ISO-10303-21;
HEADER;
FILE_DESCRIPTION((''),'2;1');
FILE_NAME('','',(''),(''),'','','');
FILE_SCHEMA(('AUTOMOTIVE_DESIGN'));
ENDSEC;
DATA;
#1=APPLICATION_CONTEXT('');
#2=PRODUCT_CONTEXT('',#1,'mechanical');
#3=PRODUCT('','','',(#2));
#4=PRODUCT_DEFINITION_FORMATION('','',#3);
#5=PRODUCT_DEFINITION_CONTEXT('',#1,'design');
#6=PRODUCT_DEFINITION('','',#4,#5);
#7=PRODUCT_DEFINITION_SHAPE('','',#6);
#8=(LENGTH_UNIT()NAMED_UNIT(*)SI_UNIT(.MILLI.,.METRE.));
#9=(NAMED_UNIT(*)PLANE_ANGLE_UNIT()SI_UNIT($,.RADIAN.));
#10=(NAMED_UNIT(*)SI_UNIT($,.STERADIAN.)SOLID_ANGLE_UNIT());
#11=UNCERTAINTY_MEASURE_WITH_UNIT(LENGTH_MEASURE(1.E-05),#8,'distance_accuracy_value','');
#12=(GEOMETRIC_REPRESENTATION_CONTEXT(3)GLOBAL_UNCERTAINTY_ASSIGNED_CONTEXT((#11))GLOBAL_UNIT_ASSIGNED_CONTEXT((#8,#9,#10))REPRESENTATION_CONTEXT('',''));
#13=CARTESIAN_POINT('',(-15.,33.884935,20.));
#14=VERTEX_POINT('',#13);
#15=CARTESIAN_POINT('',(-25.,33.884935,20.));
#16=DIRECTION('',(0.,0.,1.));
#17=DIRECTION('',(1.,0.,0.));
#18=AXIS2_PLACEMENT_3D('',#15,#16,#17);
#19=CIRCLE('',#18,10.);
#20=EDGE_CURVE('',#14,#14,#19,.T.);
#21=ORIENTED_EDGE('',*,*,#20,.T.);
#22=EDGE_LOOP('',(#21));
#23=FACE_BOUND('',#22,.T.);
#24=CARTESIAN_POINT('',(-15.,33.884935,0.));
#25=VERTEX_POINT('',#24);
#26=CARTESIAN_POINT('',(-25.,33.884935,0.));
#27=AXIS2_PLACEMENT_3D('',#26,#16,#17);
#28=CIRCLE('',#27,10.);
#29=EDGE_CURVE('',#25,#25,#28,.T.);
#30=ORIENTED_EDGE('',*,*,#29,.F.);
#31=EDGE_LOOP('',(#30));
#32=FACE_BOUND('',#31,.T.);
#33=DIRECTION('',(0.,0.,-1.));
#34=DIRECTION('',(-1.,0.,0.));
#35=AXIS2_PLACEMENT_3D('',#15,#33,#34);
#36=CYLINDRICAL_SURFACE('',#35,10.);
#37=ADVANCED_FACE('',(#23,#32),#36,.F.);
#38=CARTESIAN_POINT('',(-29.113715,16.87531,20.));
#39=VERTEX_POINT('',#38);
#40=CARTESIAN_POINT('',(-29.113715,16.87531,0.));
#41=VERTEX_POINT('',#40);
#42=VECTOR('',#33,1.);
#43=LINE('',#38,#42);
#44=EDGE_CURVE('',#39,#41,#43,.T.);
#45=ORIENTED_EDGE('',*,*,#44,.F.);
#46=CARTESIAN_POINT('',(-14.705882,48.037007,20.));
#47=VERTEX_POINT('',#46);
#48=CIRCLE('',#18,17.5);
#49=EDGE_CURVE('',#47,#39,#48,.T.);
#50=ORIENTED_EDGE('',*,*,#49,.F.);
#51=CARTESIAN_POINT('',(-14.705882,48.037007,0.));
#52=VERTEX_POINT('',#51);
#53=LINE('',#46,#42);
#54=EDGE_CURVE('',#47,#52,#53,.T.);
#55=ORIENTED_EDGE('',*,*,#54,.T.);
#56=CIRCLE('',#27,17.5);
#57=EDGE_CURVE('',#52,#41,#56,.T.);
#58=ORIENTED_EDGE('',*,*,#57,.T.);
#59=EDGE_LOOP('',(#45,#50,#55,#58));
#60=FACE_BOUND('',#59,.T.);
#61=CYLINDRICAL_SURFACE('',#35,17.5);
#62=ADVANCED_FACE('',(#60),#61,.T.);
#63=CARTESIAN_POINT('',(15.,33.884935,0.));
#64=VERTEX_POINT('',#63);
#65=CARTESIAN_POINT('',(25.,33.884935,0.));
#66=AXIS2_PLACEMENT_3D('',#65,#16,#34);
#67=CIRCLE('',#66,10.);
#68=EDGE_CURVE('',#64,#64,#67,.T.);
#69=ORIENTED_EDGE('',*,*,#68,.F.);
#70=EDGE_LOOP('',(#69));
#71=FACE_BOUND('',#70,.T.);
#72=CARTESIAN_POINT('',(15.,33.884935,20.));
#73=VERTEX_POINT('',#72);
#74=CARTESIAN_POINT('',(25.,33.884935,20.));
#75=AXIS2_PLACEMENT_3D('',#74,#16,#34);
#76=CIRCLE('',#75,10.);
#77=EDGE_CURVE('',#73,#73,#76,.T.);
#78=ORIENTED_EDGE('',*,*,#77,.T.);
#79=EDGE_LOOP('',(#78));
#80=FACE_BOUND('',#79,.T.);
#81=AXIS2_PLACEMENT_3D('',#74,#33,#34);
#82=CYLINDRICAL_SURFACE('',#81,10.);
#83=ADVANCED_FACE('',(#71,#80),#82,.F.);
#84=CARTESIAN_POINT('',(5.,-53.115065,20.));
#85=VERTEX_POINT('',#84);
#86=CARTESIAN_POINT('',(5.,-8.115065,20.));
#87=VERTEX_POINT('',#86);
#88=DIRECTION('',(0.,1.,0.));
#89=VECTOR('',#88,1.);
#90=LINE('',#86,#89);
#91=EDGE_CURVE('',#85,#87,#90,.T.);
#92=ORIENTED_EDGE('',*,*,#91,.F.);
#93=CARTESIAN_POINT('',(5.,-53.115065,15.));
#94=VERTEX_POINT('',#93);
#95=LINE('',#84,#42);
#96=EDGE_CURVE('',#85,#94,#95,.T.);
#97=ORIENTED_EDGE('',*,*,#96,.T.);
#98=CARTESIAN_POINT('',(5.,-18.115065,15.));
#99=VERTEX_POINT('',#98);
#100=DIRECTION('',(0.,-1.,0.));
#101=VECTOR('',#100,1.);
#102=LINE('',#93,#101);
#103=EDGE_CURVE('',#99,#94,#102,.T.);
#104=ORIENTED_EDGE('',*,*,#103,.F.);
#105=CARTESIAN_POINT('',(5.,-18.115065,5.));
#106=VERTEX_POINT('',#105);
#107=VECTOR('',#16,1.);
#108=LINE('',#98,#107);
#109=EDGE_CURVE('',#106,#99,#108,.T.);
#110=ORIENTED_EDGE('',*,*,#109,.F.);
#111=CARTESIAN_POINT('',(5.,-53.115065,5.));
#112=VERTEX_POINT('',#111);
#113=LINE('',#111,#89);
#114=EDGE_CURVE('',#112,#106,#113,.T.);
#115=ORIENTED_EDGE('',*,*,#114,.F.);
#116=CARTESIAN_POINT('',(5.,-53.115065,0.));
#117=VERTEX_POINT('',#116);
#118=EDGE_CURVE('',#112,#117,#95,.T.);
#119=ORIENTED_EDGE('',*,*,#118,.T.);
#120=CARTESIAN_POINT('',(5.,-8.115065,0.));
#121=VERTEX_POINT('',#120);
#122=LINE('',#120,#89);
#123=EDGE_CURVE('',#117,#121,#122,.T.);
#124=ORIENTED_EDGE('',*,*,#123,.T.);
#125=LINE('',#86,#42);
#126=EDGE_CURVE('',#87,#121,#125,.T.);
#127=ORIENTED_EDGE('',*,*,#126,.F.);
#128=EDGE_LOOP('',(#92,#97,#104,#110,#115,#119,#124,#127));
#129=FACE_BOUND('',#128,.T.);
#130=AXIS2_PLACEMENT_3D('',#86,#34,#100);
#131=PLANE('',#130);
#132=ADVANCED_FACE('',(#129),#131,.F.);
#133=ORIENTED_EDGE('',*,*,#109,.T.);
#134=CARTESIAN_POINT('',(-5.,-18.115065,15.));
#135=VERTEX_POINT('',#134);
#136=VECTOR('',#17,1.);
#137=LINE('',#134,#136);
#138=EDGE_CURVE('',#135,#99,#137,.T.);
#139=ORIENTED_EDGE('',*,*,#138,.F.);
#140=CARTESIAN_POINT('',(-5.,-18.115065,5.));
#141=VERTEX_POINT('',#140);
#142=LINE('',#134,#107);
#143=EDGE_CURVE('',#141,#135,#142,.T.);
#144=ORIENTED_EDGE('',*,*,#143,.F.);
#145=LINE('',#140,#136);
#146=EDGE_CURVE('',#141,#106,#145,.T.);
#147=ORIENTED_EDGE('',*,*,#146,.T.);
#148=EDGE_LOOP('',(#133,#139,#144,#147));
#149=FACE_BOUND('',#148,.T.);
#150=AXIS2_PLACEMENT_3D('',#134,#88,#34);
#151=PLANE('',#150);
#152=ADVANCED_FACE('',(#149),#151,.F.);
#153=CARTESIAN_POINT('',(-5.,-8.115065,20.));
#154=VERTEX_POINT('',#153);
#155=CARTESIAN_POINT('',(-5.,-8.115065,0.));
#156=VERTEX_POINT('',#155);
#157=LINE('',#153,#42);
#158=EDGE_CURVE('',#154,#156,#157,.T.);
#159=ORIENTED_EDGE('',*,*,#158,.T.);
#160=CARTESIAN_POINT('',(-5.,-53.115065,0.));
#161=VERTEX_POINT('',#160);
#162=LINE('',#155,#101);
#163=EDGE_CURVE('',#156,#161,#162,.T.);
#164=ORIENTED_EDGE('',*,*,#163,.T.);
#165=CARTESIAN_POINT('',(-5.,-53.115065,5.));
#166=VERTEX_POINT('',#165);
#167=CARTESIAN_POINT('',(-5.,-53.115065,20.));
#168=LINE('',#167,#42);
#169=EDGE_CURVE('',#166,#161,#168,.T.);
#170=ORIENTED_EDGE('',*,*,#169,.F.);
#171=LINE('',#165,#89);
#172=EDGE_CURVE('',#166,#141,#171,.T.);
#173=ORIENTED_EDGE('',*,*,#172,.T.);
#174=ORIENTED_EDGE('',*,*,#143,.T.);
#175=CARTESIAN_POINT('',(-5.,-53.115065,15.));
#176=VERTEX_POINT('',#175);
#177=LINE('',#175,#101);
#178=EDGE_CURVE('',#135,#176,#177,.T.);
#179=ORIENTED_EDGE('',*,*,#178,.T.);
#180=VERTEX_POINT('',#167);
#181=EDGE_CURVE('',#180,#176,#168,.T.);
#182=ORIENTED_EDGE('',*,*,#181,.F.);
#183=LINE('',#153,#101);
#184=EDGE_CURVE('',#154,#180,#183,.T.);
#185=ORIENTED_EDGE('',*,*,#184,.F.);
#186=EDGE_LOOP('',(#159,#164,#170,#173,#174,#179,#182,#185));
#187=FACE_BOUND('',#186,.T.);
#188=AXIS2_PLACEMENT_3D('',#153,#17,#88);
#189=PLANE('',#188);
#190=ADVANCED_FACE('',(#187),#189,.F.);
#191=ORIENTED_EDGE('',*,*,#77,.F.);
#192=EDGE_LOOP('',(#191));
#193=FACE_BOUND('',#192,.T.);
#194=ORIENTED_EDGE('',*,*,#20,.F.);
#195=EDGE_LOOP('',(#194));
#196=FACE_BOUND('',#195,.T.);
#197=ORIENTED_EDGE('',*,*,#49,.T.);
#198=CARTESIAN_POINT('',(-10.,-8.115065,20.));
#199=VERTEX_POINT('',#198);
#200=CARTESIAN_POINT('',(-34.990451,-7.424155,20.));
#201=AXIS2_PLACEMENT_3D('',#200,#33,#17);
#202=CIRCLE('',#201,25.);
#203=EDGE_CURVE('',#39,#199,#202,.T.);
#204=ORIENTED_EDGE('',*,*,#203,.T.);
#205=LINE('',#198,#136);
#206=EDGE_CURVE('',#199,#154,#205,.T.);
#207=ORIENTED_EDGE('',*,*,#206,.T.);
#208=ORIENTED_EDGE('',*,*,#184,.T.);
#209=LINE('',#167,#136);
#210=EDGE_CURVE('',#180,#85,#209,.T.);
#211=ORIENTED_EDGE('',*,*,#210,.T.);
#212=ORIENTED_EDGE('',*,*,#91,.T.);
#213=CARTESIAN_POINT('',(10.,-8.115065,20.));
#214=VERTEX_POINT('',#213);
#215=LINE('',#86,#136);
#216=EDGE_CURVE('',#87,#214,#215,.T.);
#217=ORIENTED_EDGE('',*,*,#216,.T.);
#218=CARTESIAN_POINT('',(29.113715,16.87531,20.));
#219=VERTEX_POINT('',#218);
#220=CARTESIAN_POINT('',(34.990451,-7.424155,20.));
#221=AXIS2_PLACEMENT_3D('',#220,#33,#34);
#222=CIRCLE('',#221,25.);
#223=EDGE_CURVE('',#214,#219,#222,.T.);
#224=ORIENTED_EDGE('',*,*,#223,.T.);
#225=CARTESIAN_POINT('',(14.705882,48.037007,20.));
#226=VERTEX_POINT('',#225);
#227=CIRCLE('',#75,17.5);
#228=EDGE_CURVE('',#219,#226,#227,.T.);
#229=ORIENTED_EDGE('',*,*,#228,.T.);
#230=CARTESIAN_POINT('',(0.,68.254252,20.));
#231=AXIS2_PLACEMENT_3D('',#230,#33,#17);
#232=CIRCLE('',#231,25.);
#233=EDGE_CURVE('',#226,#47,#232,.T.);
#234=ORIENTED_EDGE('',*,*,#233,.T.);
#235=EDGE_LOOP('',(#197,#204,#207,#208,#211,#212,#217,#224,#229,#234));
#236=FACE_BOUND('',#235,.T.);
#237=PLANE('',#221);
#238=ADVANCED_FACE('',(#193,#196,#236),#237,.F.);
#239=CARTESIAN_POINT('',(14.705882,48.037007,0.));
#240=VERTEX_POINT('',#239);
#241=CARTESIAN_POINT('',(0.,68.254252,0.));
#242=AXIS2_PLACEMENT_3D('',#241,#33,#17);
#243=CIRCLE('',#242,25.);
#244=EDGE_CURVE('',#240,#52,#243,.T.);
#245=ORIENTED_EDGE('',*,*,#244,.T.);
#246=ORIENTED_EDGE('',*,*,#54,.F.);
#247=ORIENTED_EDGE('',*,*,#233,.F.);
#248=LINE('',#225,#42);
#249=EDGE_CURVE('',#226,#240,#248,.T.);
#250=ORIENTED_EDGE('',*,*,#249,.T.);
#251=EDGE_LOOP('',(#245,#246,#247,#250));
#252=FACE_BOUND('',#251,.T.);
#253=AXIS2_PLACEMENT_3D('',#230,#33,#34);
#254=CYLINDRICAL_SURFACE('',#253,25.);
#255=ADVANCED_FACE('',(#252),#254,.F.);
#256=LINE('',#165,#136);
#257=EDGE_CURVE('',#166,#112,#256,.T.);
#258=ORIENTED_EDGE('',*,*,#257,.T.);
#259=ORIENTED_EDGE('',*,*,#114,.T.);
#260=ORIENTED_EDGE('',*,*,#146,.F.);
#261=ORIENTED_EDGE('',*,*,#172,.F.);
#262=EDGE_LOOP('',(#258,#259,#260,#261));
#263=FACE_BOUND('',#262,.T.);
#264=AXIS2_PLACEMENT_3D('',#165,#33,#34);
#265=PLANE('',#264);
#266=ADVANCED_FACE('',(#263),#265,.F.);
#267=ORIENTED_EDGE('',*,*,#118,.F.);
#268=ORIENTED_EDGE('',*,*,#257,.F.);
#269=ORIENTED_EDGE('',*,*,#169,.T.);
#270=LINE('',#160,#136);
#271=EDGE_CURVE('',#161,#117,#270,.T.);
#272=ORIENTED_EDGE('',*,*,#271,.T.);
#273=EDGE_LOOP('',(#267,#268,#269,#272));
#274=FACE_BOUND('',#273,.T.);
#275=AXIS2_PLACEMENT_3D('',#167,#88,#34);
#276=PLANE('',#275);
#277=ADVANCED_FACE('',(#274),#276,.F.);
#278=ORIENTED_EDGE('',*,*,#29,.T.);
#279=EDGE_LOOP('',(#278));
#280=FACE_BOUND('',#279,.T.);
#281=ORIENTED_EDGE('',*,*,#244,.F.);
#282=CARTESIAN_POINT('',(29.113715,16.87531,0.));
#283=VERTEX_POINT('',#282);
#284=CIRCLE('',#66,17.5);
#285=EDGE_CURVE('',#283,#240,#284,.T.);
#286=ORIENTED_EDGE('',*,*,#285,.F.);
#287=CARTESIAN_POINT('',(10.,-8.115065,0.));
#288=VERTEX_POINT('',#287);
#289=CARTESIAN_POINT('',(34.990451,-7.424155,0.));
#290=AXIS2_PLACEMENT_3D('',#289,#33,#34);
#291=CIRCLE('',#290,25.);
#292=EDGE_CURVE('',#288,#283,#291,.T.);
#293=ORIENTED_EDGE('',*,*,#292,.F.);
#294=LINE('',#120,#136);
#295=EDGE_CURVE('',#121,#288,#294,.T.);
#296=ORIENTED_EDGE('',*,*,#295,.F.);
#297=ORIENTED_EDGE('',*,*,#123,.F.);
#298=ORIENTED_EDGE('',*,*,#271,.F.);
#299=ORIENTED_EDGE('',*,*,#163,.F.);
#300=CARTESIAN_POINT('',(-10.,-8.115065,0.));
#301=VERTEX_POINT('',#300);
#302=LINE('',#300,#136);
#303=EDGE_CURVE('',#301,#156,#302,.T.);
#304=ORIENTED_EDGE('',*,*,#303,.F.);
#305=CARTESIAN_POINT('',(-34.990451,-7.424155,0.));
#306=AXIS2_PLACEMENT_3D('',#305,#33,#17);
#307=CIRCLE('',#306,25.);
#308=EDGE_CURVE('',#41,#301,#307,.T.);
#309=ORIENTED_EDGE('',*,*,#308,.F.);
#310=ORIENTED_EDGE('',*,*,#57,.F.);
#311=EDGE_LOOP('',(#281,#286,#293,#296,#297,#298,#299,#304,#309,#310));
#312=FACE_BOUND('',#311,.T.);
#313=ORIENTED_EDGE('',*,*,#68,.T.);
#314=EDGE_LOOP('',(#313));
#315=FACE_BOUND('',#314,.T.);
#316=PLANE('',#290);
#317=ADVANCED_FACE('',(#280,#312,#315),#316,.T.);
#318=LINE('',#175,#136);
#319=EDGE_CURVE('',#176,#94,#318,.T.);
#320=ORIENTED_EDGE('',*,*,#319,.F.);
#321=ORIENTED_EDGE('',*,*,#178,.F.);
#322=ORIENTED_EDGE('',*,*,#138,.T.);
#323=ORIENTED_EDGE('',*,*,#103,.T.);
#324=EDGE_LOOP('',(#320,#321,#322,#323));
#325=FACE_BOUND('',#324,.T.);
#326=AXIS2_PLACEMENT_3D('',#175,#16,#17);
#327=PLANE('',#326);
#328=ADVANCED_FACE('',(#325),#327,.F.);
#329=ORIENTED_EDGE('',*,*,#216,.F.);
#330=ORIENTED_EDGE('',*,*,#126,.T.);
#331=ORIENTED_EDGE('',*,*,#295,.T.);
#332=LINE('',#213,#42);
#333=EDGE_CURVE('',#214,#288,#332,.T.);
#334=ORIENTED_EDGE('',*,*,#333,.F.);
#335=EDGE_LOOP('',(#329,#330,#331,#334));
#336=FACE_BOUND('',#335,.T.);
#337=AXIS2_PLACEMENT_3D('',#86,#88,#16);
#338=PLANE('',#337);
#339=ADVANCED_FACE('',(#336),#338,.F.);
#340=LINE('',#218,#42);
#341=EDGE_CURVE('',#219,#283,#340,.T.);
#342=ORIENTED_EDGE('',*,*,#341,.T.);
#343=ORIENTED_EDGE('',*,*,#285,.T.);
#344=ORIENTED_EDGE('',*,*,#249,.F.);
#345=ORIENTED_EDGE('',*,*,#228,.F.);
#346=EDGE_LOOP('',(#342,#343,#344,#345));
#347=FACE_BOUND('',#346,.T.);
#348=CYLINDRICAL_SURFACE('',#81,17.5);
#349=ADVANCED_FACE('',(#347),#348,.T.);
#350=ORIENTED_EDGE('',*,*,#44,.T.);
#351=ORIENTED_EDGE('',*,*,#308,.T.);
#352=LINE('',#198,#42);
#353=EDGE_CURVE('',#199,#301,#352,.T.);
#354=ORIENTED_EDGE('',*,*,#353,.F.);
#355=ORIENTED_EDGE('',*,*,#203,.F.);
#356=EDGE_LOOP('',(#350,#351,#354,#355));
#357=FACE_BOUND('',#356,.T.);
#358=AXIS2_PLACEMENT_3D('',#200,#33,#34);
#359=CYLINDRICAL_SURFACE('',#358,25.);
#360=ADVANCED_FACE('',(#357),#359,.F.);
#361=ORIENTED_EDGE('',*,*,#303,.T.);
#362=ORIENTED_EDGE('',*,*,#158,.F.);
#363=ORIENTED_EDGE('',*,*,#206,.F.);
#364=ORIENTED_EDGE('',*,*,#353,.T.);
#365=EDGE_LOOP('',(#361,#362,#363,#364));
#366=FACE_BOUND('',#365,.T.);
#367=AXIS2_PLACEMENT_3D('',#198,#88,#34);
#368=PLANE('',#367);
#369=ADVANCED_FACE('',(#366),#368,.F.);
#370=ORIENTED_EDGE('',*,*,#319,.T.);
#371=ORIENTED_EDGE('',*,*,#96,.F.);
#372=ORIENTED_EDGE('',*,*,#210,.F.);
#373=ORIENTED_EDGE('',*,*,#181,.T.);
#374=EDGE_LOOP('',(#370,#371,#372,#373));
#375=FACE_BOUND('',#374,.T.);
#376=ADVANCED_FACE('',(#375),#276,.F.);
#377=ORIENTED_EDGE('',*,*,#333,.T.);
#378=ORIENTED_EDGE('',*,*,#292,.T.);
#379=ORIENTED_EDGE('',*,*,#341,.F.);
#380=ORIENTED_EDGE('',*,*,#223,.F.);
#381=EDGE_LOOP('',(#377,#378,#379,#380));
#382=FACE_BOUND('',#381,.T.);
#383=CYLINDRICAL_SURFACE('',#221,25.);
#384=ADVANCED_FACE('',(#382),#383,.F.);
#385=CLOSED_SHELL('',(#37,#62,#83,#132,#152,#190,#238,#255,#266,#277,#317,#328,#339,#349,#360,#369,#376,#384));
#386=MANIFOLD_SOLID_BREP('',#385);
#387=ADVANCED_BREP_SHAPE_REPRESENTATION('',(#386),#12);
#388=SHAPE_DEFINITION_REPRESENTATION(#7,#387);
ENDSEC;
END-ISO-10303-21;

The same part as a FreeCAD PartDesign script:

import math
import FreeCAD as App
import Part
import Sketcher
from FreeCAD import Vector

doc = App.newDocument("Part")
body = doc.addObject("PartDesign::Body", "Body")

sketch1 = body.newObject("Sketcher::SketchObject", "Sketch")
sketch1.AttachmentSupport = (doc.getObject("XY_Plane"), [""])
sketch1.MapMode = "FlatFace"
sketch1.addGeometry([
    Part.LineSegment(Vector(-10, -8.115065, 0), Vector(-5, -8.115065, 0)),
    Part.LineSegment(Vector(-5, -8.115065, 0), Vector(-5, -53.115065, 0)),
    Part.LineSegment(Vector(-5, -53.115065, 0), Vector(5, -53.115065, 0)),
    Part.LineSegment(Vector(5, -53.115065, 0), Vector(5, -8.115065, 0)),
    Part.LineSegment(Vector(5, -8.115065, 0), Vector(10, -8.115065, 0)),
    Part.ArcOfCircle(Part.Circle(Vector(34.990451, -7.424155, 0), Vector(0, 0, 1), 25), math.radians(103.595716), math.radians(181.583652)),
    Part.ArcOfCircle(Part.Circle(Vector(25, 33.884935, 0), Vector(0, 0, 1), 17.5), math.radians(-76.404284), math.radians(126.031879)),
    Part.ArcOfCircle(Part.Circle(Vector(0, 68.254252, 0), Vector(0, 0, 1), 25), math.radians(-126.031879), math.radians(-53.968121)),
    Part.ArcOfCircle(Part.Circle(Vector(-25, 33.884935, 0), Vector(0, 0, 1), 17.5), math.radians(53.968121), math.radians(256.404284)),
    Part.ArcOfCircle(Part.Circle(Vector(-34.990451, -7.424155, 0), Vector(0, 0, 1), 25), math.radians(-1.583652), math.radians(76.404284)),
    Part.Circle(Vector(-25, 33.884935, 0), Vector(0, 0, 1), 10),
    Part.Circle(Vector(25, 33.884935, 0), Vector(0, 0, 1), 10),
], False)
sketch1.addConstraint([
    Sketcher.Constraint("Coincident", 0, 2, 1, 1),
    Sketcher.Constraint("Coincident", 1, 2, 2, 1),
    Sketcher.Constraint("Coincident", 2, 2, 3, 1),
    Sketcher.Constraint("Coincident", 3, 2, 4, 1),
    Sketcher.Constraint("Coincident", 4, 2, 5, 2),
    Sketcher.Constraint("Tangent", 5, 1, 6, 1),
    Sketcher.Constraint("Tangent", 6, 2, 7, 2),
    Sketcher.Constraint("Tangent", 7, 1, 8, 1),
    Sketcher.Constraint("Tangent", 8, 2, 9, 2),
    Sketcher.Constraint("Coincident", 9, 1, 0, 1),
    Sketcher.Constraint("Horizontal", 0),
    Sketcher.Constraint("Vertical", 1),
    Sketcher.Constraint("Horizontal", 2),
    Sketcher.Constraint("Vertical", 3),
    Sketcher.Constraint("Horizontal", 4),
    Sketcher.Constraint("Coincident", 10, 3, 8, 3),
    Sketcher.Constraint("Coincident", 11, 3, 6, 3),
    Sketcher.Constraint("Equal", 5, 7),
    Sketcher.Constraint("Equal", 6, 8),
    Sketcher.Constraint("Equal", 7, 9),
    Sketcher.Constraint("Equal", 10, 11),
    Sketcher.Constraint("Symmetric", 6, 3, 8, 3, -2),
    Sketcher.Constraint("Symmetric", 0, 2, 3, 2, -2),
    Sketcher.Constraint("Horizontal", 5, 3, 9, 3),
    Sketcher.Constraint("Diameter", 10, 20.0),
    Sketcher.Constraint("Radius", 5, 25.0),
    Sketcher.Constraint("Radius", 6, 17.5),
    Sketcher.Constraint("DistanceX", 0, 1, 0, 2, 5.0),
    Sketcher.Constraint("DistanceX", 2, 1, 2, 2, 10.0),
    Sketcher.Constraint("DistanceY", 1, 2, 1, 1, 45.0),
    Sketcher.Constraint("DistanceX", -1, 1, 6, 3, 25.0),
    Sketcher.Constraint("DistanceY", 0, 2, 8, 3, 42.0),
    Sketcher.Constraint("DistanceY", -1, 1, 5, 1, 16.87531),
])
pad1 = body.newObject("PartDesign::Pad", "Pad")
pad1.Profile = sketch1
pad1.Length = 20

sketch2 = body.newObject("Sketcher::SketchObject", "Sketch001")
sketch2.AttachmentSupport = (doc.getObject("YZ_Plane"), [""])
sketch2.MapMode = "FlatFace"
sketch2.AttachmentOffset = App.Placement(Vector(0, 0, 5), App.Rotation())
sketch2.addGeometry([
    Part.LineSegment(Vector(-18.115065, 15, 0), Vector(-53.115065, 15, 0)),
    Part.LineSegment(Vector(-53.115065, 15, 0), Vector(-53.115065, 5, 0)),
    Part.LineSegment(Vector(-53.115065, 5, 0), Vector(-18.115065, 5, 0)),
    Part.LineSegment(Vector(-18.115065, 5, 0), Vector(-18.115065, 15, 0)),
], False)
sketch2.addConstraint([
    Sketcher.Constraint("Coincident", 0, 2, 1, 1),
    Sketcher.Constraint("Coincident", 1, 2, 2, 1),
    Sketcher.Constraint("Coincident", 2, 2, 3, 1),
    Sketcher.Constraint("Coincident", 3, 2, 0, 1),
    Sketcher.Constraint("Horizontal", 0),
    Sketcher.Constraint("Vertical", 1),
    Sketcher.Constraint("Horizontal", 2),
    Sketcher.Constraint("Vertical", 3),
    Sketcher.Constraint("DistanceX", 0, 2, 0, 1, 35.0),
    Sketcher.Constraint("DistanceY", 1, 2, 1, 1, 10.0),
    Sketcher.Constraint("DistanceY", -1, 1, 0, 2, 15.0),
    Sketcher.Constraint("DistanceX", 0, 2, -1, 1, 53.115065),
])
pocket1 = body.newObject("PartDesign::Pocket", "Pocket")
pocket1.Profile = sketch2
pocket1.Length = 10

doc.recompute()
